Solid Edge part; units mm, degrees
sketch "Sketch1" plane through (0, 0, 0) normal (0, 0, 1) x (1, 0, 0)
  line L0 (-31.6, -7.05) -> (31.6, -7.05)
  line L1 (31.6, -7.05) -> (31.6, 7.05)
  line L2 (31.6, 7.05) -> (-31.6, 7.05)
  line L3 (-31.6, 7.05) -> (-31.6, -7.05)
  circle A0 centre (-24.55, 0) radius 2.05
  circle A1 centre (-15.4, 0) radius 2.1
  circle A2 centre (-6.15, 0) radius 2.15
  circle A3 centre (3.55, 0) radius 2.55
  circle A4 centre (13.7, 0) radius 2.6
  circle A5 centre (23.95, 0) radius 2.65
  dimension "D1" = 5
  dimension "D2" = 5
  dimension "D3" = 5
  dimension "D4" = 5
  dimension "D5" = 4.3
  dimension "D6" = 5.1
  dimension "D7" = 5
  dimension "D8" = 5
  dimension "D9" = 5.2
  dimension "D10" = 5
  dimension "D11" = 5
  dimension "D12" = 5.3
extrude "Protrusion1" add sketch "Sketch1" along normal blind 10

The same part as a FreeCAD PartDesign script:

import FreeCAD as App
import Part
import Sketcher
Q = App.Units.Quantity


def add_polygon(sketch, points):
    """Adds a closed chain of lines whose ends are joined by coincident constraints."""
    first, n = sketch.GeometryCount, len(points)
    for a, b in zip(points, points[1:] + points[:1]):
        sketch.addGeometry(Part.LineSegment(App.Vector(*a, 0), App.Vector(*b, 0)), False)
    for i in range(n):
        sketch.addConstraint(Sketcher.Constraint("Coincident", first + i, 2, first + (i + 1) % n, 1))

doc = App.newDocument("Part")
body = doc.addObject("PartDesign::Body", "Body")

sketch1 = body.newObject("Sketcher::SketchObject", "Sketch")
sketch1.AttachmentSupport = (doc.getObject("XY_Plane"), [""])
sketch1.MapMode = "FlatFace"
add_polygon(sketch1, [(-31.6, 7), (-31.6, -7), (31.6, -7), (31.6, 7)])
sketch1.addGeometry(Part.Circle(App.Vector(-24.6, 0, 0), App.Vector(0, 0, 1), 2), False)
sketch1.addGeometry(Part.Circle(App.Vector(-15.4, 0, 0), App.Vector(0, 0, 1), 2.1), False)
sketch1.addGeometry(Part.Circle(App.Vector(-6.2, 0, 0), App.Vector(0, 0, 1), 2.1), False)
sketch1.addGeometry(Part.Circle(App.Vector(3.5, 0, 0), App.Vector(0, 0, 1), 2.5), False)
sketch1.addGeometry(Part.Circle(App.Vector(13.7, 0, 0), App.Vector(0, 0, 1), 2.6), False)
sketch1.addGeometry(Part.Circle(App.Vector(23.9, 0, 0), App.Vector(0, 0, 1), 2.6), False)
sketch1.addConstraint(Sketcher.Constraint("Vertical", 0))
sketch1.addConstraint(Sketcher.Constraint("Horizontal", 1))
sketch1.addConstraint(Sketcher.Constraint("Vertical", 2))
sketch1.addConstraint(Sketcher.Constraint("Horizontal", 3))
sketch1.addConstraint(Sketcher.Constraint("Symmetric", 0, 2, 2, 2, -1, 1))
sketch1.addConstraint(Sketcher.Constraint("PointOnObject", 4, 3, -1))
sketch1.addConstraint(Sketcher.Constraint("PointOnObject", 5, 3, -1))
sketch1.addConstraint(Sketcher.Constraint("PointOnObject", 6, 3, -1))
sketch1.addConstraint(Sketcher.Constraint("PointOnObject", 7, 3, -1))
sketch1.addConstraint(Sketcher.Constraint("PointOnObject", 8, 3, -1))
sketch1.addConstraint(Sketcher.Constraint("PointOnObject", 9, 3, -1))
sketch1.addConstraint(Sketcher.Constraint("Diameter", 4, Q("4.1 mm")))
sketch1.addConstraint(Sketcher.Constraint("Diameter", 5, Q("4.2 mm")))
sketch1.addConstraint(Sketcher.Constraint("Diameter", 6, Q("4.3 mm")))
sketch1.addConstraint(Sketcher.Constraint("Diameter", 7, Q("5.1 mm")))
sketch1.addConstraint(Sketcher.Constraint("Diameter", 8, Q("5.2 mm")))
sketch1.addConstraint(Sketcher.Constraint("Diameter", 9, Q("5.3 mm")))
sketch1.addConstraint(Sketcher.Constraint("DistanceX", 1, 1, 1, 2, Q("63.2 mm")))
sketch1.addConstraint(Sketcher.Constraint("DistanceY", 0, 2, 0, 1, Q("14.1 mm")))
sketch1.addConstraint(Sketcher.Constraint("DistanceX", 5, 3, 1, 2, Q("47 mm")))
sketch1.addConstraint(Sketcher.Constraint("DistanceX", -1, 1, 8, 3, Q("13.7 mm")))
sketch1.addConstraint(Sketcher.Constraint("DistanceX", 4, 3, 6, 3, Q("18.4 mm")))
sketch1.addConstraint(Sketcher.Constraint("DistanceX", 6, 3, 7, 3, Q("9.7 mm")))
sketch1.addConstraint(Sketcher.Constraint("DistanceX", 7, 3, 9, 3, Q("20.4 mm")))
sketch1.addConstraint(Sketcher.Constraint("DistanceX", 4, 3, -1, 1, Q("24.55 mm")))
pad1 = body.newObject("PartDesign::Pad", "Pad")
pad1.Profile = sketch1
pad1.Length = 10

doc.recompute()
